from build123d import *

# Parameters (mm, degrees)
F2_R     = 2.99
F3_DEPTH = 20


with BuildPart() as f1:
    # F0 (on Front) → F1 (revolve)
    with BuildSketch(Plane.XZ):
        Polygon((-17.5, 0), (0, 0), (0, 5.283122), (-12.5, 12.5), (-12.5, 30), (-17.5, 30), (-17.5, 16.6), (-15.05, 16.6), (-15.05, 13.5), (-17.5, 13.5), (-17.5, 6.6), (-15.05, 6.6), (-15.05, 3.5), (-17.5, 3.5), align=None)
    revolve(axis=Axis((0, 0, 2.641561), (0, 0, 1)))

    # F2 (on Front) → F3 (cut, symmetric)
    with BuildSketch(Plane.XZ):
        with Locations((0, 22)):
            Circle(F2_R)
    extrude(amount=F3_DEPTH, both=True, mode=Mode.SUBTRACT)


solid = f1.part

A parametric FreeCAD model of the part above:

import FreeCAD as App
import Part
import Sketcher
from FreeCAD import Vector
Q = App.Units.Quantity


def add_polygon(sketch, points):
    """Adds a closed chain of lines whose ends are joined by coincident constraints."""
    first, n = sketch.GeometryCount, len(points)
    for a, b in zip(points, points[1:] + points[:1]):
        sketch.addGeometry(Part.LineSegment(App.Vector(*a, 0), App.Vector(*b, 0)), False)
    for i in range(n):
        sketch.addConstraint(Sketcher.Constraint("Coincident", first + i, 2, first + (i + 1) % n, 1))

doc = App.newDocument("Part")
body = doc.addObject("PartDesign::Body", "Body")

# Sketch on XZ plane
sketch1 = body.newObject("Sketcher::SketchObject", "Sketch")
sketch1.AttachmentSupport = (doc.getObject("XZ_Plane"), [""])
sketch1.MapMode = "FlatFace"
add_polygon(sketch1, [(-17.5, 0), (0, 0), (0, 5.283122), (-12.5, 12.5), (-12.5, 30), (-17.5, 30), (-17.5, 16.6), (-15.05, 16.6), (-15.05, 13.5), (-17.5, 13.5), (-17.5, 6.6), (-15.05, 6.6), (-15.05, 3.5), (-17.5, 3.5)])  # lines 0-13
sketch1.addConstraint([
    Sketcher.Constraint("Horizontal", 0),
    Sketcher.Constraint("Vertical", 1),
    Sketcher.Constraint("Vertical", 3),
    Sketcher.Constraint("Horizontal", 4),
    Sketcher.Constraint("Vertical", 5),
    Sketcher.Constraint("Horizontal", 6),
    Sketcher.Constraint("Vertical", 7),
    Sketcher.Constraint("Horizontal", 8),
    Sketcher.Constraint("Vertical", 9),
    Sketcher.Constraint("Horizontal", 10),
    Sketcher.Constraint("Vertical", 11),
    Sketcher.Constraint("Horizontal", 12),
    Sketcher.Constraint("Vertical", 13),
    Sketcher.Constraint("Coincident", 0, 2, -1, 1),
    Sketcher.Constraint("Vertical", 5, 2, 8, 2),
    Sketcher.Constraint("Vertical", 7, 2, 10, 2),
    Sketcher.Constraint("Vertical", 9, 2, 12, 2),
    Sketcher.Constraint("Equal", 0, 3),
    Sketcher.Constraint("Equal", 7, 11),
    Sketcher.Constraint("DistanceX", 4, 2, 4, 1, 5.0),
    Sketcher.Constraint("Angle", 2, Q("150.000001 deg")),
    Sketcher.Constraint("DistanceX", 0, 1, 0, 2, 17.5),
    Sketcher.Constraint("DistanceY", 5, 2, 5, 1, 13.4),
    Sketcher.Constraint("DistanceY", 7, 2, 7, 1, 3.1),
    Sketcher.Constraint("DistanceY", 9, 2, 9, 1, 6.9),
    Sketcher.Constraint("DistanceY", 13, 2, 13, 1, 3.5),
    Sketcher.Constraint("DistanceX", 6, 1, 6, 2, 2.45),
])
revolution = body.newObject("PartDesign::Revolution", "Revolution")
revolution.Profile = sketch1
revolution.ReferenceAxis = (sketch1, ["V_Axis"])
revolution.Angle = 360

# Sketch on XZ plane
sketch2 = body.newObject("Sketcher::SketchObject", "Sketch001")
sketch2.AttachmentSupport = (doc.getObject("XZ_Plane"), [""])
sketch2.MapMode = "FlatFace"
sketch2.addGeometry(Part.Circle(Vector(0, 22, 0), Vector(0, 0, 1), 2.99), False)
sketch2.addConstraint([
    Sketcher.Constraint("PointOnObject", 0, 3, -2),
    Sketcher.Constraint("Diameter", 0, 5.98),
    Sketcher.Constraint("DistanceY", -1, 1, 0, 3, 22.0),
])
pocket1 = body.newObject("PartDesign::Pocket", "Pocket")
pocket1.Profile = sketch2
pocket1.Length = 40
pocket1.Midplane = True

doc.recompute()
